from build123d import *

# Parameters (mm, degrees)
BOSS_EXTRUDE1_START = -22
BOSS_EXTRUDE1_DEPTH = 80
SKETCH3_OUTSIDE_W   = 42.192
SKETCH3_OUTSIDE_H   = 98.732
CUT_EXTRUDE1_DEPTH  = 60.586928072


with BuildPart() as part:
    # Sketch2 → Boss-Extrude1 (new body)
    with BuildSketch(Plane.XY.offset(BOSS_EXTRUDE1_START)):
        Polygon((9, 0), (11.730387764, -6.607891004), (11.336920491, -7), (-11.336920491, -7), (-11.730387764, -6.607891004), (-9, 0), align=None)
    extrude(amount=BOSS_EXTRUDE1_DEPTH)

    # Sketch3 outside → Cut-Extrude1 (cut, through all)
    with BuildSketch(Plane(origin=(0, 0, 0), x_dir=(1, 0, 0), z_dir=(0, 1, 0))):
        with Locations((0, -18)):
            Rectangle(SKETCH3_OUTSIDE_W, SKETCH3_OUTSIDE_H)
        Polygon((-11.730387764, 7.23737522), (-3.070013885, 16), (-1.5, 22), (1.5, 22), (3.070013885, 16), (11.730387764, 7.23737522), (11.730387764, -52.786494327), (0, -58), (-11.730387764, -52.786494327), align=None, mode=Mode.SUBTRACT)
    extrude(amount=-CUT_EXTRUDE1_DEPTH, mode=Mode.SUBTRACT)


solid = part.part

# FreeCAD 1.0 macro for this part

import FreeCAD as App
import Part
import Sketcher

V = App.Vector
Q = App.Units.Quantity


def add_polygon(sketch, points):
    """Adds a closed chain of lines whose ends are joined by coincident constraints."""
    first, n = sketch.GeometryCount, len(points)
    for a, b in zip(points, points[1:] + points[:1]):
        sketch.addGeometry(Part.LineSegment(App.Vector(*a, 0), App.Vector(*b, 0)), False)
    for i in range(n):
        sketch.addConstraint(Sketcher.Constraint("Coincident", first + i, 2, first + (i + 1) % n, 1))

doc = App.newDocument("Part")
body = doc.addObject("PartDesign::Body", "Body")

sketch1 = doc.addObject("Sketcher::SketchObject", "Sketch")
body.addObject(sketch1)
sketch1.AttachmentSupport = (doc.XY_Plane, [""])
sketch1.MapMode = "FlatFace"
sketch1.AttachmentOffset = App.Placement(V(0, 0, -22), App.Rotation())
add_polygon(sketch1, [(11.730388, -6.607891), (9, 0), (-9, 0), (-11.730388, -6.607891), (-11.33692, -7), (11.33692, -7)])
sketch1.addConstraint([
    Sketcher.Constraint("Horizontal", 1),
    Sketcher.Constraint("Horizontal", 4),
    Sketcher.Constraint("Symmetric", 0, 2, 1, 2, -1, 1),
    Sketcher.Constraint("Symmetric", 2, 2, 5, 2, -2),
    Sketcher.Constraint("Equal", 3, 5),
    Sketcher.Constraint("DistanceX", 1, 2, 1, 1, Q("18 mm")),
    Sketcher.Constraint("DistanceY", 3, 2, -1, 1, Q("7 mm")),
    Sketcher.Constraint("DistanceX", 4, 1, 4, 2, Q("22.673841 mm")),
    Sketcher.Constraint("DistanceY", 2, 2, -1, 1, Q("6.607891 mm")),
    Sketcher.Constraint("DistanceX", 2, 2, 4, 2, Q("23.067308 mm")),
])
pad1 = doc.addObject("PartDesign::Pad", "Pad")
body.addObject(pad1)
pad1.Profile = sketch1
pad1.Length = 80

sketch2 = doc.addObject("Sketcher::SketchObject", "Sketch001")
body.addObject(sketch2)
sketch2.AttachmentSupport = (doc.XZ_Plane, [""])
sketch2.MapMode = "FlatFace"
add_polygon(sketch2, [(-21.096, -31.366), (-21.096, 67.366), (21.096, 67.366), (21.096, -31.366)])
add_polygon(sketch2, [(-11.730388, 52.786494), (-11.730388, -7.237375), (-3.070014, -16), (-1.5, -22), (1.5, -22), (3.070014, -16), (11.730388, -7.237375), (11.730388, 52.786494), (0, 58)])
sketch2.addConstraint([
    Sketcher.Constraint("Vertical", 0),
    Sketcher.Constraint("Horizontal", 1),
    Sketcher.Constraint("Vertical", 2),
    Sketcher.Constraint("Horizontal", 3),
    Sketcher.Constraint("Vertical", 4),
    Sketcher.Constraint("Horizontal", 7),
    Sketcher.Constraint("Vertical", 10),
    Sketcher.Constraint("Symmetric", 5, 2, 8, 2, -2),
    Sketcher.Constraint("Symmetric", 4, 2, 9, 2, -2),
    Sketcher.Constraint("PointOnObject", 11, 2, -2),
    Sketcher.Constraint("Horizontal", 10, 2, 12, 2),
    Sketcher.Constraint("Equal", 6, 8),
    Sketcher.Constraint("DistanceX", 7, 1, 7, 2, Q("3 mm")),
    Sketcher.Constraint("DistanceY", 5, 2, -1, 1, Q("16 mm")),
    Sketcher.Constraint("DistanceY", 6, 2, -1, 1, Q("22 mm")),
    Sketcher.Constraint("DistanceY", -1, 1, 11, 2, Q("58 mm")),
    Sketcher.Constraint("DistanceX", 1, 1, 1, 2, Q("42.192 mm")),
    Sketcher.Constraint("DistanceY", 0, 1, 0, 2, Q("98.732 mm")),
    Sketcher.Constraint("DistanceX", 0, 2, -1, 1, Q("21.096 mm")),
    Sketcher.Constraint("DistanceY", -1, 1, 0, 2, Q("67.366 mm")),
    Sketcher.Constraint("DistanceY", 4, 2, 4, 1, Q("60.02387 mm")),
    Sketcher.Constraint("DistanceX", 4, 2, 8, 2, Q("14.800402 mm")),
    Sketcher.Constraint("Distance", 6, Q("6.202011 mm")),
    Sketcher.Constraint("Distance", 11, Q("12.836769 mm")),
])
pocket1 = doc.addObject("PartDesign::Pocket", "Pocket")
body.addObject(pocket1)
pocket1.Profile = sketch2
pocket1.Type = "ThroughAll"
pocket1.Reversed = True

doc.recompute()
